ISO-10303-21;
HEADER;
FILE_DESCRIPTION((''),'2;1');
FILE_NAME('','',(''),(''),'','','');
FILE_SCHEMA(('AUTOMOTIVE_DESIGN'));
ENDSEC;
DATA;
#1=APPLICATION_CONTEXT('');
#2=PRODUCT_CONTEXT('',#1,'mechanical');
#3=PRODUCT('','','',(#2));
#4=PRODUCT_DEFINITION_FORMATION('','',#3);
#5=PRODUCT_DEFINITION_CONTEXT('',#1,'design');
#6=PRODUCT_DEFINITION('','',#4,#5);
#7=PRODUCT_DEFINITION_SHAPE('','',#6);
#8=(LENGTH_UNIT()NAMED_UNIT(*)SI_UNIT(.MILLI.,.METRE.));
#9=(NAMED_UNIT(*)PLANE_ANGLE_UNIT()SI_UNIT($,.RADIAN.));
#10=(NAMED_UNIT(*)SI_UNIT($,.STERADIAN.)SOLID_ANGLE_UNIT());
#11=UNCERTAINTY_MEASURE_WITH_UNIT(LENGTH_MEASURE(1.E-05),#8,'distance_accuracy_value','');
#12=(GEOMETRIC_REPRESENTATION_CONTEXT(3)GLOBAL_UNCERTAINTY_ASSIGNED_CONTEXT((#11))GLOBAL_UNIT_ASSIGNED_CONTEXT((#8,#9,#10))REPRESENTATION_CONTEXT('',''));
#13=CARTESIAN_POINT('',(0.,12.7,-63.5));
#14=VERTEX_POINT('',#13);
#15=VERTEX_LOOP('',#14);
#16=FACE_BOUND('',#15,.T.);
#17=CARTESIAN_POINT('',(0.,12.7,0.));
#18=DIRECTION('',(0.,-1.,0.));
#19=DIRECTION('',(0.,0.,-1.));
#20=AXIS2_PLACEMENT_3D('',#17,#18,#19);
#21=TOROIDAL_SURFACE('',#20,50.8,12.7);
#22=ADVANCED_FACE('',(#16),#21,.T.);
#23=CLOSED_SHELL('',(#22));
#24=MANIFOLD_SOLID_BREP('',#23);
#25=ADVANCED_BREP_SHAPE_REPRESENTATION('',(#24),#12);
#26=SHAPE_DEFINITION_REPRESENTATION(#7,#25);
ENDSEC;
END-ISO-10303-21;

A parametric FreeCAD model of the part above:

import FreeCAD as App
import Part
import Sketcher
Q = App.Units.Quantity

doc = App.newDocument("Part")
body = doc.addObject("PartDesign::Body", "Body")

sketch1 = body.newObject("Sketcher::SketchObject", "Sketch")
sketch1.AttachmentSupport = (doc.getObject("XY_Plane"), [""])
sketch1.MapMode = "FlatFace"
sketch1.addGeometry(Part.Circle(App.Vector(51, 13, 0), App.Vector(0, 0, 1), 13), False)
sketch1.addConstraint(Sketcher.Constraint("Diameter", 0, Q("1 in")))
sketch1.addConstraint(Sketcher.Constraint("DistanceX", -1, 1, 0, 3, Q("2 in")))
sketch1.addConstraint(Sketcher.Constraint("DistanceY", -1, 1, 0, 3, Q("0.5 in")))
revolution = body.newObject("PartDesign::Revolution", "Revolution")
revolution.Profile = sketch1
revolution.ReferenceAxis = (sketch1, ["V_Axis"])
revolution.Angle = 360

doc.recompute()
